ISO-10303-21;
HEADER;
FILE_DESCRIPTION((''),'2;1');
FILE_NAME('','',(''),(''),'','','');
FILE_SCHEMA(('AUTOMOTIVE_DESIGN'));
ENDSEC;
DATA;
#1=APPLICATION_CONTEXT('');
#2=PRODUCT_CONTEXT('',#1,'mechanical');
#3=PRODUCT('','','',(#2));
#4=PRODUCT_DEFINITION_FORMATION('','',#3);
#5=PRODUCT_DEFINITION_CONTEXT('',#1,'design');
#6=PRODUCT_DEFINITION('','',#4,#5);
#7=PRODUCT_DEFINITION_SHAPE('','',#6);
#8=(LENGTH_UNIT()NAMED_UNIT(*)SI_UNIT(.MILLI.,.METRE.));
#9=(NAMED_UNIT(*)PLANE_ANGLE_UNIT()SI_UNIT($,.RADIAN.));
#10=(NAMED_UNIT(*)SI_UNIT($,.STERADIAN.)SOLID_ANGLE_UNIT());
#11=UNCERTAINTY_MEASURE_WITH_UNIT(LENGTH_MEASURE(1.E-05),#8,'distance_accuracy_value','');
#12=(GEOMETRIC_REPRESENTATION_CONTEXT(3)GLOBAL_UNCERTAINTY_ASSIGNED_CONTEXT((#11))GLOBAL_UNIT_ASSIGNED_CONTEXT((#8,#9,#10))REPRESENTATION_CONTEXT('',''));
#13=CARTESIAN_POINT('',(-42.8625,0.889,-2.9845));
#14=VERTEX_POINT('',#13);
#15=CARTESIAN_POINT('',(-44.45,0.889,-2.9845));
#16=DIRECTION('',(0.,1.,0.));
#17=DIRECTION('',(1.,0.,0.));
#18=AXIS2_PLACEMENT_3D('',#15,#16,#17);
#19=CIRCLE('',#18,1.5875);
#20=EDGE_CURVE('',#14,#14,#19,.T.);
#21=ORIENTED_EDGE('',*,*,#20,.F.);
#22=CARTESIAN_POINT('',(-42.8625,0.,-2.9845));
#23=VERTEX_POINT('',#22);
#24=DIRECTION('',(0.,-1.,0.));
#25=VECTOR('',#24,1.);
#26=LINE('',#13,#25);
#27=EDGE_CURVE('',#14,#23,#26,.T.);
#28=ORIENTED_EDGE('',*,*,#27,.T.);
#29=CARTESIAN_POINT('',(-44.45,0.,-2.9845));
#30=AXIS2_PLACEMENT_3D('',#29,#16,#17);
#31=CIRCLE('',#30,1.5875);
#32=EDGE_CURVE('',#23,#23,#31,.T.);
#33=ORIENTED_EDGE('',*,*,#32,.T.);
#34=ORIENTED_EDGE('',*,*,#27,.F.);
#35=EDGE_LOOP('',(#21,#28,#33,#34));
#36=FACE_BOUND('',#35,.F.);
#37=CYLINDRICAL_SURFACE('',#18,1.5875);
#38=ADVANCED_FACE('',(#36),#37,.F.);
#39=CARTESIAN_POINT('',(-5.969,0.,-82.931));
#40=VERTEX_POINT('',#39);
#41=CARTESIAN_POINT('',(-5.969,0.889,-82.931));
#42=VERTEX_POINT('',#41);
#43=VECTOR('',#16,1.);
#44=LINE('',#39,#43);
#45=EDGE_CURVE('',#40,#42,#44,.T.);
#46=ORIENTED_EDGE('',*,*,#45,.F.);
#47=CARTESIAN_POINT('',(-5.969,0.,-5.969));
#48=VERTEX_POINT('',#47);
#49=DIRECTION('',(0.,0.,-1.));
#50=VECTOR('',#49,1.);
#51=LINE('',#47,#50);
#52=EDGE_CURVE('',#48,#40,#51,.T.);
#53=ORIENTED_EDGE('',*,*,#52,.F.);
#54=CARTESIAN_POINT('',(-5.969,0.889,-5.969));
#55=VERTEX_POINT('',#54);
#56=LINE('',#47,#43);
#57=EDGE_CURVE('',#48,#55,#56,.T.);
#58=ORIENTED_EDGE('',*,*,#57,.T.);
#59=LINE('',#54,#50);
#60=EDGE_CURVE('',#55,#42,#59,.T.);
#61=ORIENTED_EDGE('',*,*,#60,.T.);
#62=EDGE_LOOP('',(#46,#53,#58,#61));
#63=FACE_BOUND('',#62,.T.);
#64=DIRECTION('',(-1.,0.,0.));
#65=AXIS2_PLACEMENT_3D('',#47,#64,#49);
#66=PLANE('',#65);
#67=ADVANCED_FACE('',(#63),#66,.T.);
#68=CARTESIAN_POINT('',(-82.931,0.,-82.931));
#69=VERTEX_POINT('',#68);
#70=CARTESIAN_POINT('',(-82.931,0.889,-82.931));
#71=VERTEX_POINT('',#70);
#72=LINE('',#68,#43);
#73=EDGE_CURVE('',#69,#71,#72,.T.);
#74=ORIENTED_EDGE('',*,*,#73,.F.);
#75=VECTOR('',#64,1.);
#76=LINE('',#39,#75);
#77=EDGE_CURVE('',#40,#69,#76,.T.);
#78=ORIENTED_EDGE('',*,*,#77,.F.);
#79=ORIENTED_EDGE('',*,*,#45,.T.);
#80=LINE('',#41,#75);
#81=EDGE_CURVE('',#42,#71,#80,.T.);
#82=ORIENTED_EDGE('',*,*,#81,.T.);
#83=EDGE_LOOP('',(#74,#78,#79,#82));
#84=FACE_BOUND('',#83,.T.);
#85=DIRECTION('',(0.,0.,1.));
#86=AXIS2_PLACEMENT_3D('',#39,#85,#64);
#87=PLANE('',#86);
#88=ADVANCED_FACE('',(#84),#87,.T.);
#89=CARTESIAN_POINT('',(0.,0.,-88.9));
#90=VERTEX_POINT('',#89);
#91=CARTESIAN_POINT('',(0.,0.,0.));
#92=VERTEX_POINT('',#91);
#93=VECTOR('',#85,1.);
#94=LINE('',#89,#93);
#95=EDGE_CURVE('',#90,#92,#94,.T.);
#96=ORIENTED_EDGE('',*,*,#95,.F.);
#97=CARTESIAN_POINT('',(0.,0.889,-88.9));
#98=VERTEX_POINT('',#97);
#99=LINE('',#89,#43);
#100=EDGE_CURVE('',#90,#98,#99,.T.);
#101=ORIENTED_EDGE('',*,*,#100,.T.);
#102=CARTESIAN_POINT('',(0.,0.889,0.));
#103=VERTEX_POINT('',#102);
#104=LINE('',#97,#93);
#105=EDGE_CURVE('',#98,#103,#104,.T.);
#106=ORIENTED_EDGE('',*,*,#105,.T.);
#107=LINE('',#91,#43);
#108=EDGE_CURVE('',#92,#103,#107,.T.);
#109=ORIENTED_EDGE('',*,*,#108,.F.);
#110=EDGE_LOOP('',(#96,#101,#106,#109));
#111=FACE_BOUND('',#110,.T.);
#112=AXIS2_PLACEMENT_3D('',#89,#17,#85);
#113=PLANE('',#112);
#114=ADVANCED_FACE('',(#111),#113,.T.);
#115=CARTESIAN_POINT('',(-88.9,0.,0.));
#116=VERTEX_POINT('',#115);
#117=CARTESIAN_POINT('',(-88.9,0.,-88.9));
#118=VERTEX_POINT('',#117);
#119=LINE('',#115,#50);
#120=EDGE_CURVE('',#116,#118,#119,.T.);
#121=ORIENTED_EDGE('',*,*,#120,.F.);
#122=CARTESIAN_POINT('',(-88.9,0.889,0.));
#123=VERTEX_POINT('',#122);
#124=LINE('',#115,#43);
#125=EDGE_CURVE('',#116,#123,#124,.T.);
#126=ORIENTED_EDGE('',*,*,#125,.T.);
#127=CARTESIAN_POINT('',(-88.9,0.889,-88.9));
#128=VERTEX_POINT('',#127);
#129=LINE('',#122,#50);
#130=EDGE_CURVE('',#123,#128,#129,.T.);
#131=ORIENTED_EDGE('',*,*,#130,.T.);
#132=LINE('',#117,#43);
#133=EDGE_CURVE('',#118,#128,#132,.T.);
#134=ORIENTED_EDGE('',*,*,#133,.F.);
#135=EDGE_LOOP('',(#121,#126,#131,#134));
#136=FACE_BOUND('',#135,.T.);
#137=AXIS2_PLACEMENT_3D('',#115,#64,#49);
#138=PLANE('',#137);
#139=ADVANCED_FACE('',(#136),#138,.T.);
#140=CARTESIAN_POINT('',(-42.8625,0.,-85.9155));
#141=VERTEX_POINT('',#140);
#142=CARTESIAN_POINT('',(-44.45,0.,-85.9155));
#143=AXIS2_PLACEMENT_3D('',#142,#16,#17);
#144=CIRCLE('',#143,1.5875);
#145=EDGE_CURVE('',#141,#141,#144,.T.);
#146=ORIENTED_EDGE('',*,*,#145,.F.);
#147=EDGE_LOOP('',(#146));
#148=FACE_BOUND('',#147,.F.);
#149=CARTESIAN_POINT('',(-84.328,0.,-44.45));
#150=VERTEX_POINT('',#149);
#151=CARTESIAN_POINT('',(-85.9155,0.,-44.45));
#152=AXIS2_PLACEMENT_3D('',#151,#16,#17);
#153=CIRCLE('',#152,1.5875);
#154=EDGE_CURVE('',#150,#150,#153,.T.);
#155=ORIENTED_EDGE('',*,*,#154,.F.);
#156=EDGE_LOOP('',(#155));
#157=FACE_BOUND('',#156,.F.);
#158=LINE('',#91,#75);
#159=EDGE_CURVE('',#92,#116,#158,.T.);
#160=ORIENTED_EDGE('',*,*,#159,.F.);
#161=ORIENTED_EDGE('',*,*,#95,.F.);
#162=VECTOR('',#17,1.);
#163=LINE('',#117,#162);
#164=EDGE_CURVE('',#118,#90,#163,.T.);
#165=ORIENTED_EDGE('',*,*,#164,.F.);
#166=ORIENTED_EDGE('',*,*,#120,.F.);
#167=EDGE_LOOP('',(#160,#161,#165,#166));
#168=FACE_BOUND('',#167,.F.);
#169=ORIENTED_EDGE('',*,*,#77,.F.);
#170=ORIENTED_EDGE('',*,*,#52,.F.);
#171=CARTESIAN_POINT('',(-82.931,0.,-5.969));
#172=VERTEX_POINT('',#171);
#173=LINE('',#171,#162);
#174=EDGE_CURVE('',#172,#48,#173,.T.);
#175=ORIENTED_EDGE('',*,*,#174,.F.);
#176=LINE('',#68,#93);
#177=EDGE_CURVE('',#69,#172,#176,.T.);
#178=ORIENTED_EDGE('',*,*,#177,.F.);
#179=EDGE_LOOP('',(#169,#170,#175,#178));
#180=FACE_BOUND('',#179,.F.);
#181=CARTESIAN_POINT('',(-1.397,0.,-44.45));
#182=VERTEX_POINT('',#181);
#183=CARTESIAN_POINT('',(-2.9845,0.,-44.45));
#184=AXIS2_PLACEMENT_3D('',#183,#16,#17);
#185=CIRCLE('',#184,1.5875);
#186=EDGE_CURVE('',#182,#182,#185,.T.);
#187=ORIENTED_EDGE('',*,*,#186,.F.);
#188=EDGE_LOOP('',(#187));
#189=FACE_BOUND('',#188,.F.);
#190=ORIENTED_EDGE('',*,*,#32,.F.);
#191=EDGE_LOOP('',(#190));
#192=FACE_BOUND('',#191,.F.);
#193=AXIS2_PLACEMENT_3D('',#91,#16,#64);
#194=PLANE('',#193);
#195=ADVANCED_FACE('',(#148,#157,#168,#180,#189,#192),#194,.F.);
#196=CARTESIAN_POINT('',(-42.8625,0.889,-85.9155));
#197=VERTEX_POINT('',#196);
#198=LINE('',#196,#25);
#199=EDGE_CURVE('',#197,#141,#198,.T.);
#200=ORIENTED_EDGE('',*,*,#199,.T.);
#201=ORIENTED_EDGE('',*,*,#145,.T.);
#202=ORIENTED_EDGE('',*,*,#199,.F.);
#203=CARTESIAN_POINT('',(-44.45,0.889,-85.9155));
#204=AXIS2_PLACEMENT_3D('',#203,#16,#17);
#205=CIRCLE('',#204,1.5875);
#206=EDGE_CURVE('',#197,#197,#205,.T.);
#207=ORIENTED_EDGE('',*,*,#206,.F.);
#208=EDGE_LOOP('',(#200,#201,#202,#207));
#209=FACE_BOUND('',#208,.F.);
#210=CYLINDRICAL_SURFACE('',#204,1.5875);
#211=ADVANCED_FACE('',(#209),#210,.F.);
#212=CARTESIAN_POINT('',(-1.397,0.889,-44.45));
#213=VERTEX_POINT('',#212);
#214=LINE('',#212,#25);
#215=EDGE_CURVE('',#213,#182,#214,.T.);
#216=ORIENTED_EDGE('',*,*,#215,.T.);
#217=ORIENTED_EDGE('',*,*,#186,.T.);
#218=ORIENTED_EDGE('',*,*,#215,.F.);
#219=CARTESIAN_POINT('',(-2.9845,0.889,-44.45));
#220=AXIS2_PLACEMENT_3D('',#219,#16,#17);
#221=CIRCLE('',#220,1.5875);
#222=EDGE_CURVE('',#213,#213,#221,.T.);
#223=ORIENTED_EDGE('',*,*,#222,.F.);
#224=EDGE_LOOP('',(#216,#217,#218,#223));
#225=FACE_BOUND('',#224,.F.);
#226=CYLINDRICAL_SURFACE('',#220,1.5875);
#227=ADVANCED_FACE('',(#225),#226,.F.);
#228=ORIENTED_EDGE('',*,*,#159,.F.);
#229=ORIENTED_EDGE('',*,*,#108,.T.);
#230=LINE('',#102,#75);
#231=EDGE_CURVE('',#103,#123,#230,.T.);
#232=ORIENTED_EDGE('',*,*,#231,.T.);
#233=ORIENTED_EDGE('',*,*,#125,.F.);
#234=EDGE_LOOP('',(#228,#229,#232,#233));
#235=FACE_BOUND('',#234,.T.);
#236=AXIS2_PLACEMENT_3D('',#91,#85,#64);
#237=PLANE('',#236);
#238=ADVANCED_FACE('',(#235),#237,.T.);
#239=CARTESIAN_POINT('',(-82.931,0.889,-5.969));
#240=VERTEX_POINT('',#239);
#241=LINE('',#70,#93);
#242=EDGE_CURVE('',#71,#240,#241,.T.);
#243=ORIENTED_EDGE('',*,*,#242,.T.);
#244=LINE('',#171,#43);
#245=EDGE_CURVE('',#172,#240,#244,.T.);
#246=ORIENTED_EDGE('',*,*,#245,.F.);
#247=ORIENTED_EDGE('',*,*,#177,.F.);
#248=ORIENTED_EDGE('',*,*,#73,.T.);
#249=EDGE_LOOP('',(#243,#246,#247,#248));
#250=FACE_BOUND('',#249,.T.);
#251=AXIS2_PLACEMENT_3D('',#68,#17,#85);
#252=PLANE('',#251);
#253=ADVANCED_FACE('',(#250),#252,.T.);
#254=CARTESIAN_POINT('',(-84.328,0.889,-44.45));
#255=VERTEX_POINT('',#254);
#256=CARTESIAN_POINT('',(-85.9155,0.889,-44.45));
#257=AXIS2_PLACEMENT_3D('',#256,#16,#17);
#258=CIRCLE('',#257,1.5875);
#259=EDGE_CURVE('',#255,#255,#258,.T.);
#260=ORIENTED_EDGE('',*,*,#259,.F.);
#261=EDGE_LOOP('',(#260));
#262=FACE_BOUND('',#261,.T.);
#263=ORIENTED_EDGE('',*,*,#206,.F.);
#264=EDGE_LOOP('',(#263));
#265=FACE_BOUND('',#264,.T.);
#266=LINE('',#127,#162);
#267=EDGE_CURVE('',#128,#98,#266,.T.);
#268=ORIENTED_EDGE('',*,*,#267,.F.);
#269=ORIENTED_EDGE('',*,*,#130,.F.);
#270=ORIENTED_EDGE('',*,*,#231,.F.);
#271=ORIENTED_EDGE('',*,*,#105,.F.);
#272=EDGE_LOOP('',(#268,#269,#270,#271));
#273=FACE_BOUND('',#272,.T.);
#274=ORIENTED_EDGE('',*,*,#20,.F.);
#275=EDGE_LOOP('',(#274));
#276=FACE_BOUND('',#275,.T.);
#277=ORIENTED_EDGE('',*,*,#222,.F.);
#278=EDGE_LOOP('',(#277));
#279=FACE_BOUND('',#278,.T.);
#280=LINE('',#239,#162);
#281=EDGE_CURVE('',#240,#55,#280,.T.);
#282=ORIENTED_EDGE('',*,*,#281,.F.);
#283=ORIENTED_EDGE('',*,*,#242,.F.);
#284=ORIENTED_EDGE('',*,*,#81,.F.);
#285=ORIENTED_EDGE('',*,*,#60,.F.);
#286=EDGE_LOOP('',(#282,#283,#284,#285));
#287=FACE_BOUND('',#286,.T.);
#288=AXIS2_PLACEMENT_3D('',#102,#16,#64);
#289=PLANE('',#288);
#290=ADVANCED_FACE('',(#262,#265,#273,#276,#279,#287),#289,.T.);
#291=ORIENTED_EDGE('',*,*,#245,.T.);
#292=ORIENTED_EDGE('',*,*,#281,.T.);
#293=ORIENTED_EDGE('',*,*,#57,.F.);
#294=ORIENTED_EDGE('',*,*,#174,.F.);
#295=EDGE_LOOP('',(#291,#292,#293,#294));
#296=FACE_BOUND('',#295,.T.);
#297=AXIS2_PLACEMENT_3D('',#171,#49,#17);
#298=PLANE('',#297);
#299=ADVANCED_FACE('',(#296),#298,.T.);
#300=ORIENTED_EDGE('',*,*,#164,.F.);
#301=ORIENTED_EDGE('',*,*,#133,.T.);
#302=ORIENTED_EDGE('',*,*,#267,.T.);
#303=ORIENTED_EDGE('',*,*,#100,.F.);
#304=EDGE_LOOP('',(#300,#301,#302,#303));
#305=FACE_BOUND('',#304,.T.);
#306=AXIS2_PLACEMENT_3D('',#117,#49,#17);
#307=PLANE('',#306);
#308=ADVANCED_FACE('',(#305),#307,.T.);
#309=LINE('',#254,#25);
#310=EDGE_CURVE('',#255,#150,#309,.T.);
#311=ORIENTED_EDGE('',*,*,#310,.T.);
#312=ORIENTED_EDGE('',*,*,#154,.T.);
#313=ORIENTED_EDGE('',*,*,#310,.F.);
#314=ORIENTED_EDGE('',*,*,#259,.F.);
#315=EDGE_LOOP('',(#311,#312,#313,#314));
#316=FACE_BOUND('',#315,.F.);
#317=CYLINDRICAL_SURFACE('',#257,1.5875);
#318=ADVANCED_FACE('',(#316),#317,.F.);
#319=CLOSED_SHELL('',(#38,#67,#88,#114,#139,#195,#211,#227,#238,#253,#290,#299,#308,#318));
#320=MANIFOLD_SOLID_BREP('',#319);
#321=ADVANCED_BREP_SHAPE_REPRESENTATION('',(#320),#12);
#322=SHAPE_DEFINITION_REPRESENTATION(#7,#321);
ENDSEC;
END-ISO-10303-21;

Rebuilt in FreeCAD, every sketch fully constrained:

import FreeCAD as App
import Part
import Sketcher
Q = App.Units.Quantity

doc = App.newDocument("Part")
body = doc.addObject("PartDesign::Body", "Body")

sketch1 = doc.addObject("Sketcher::SketchObject", "Sketch")
body.addObject(sketch1)
sketch1.AttachmentSupport = (doc.XZ_Plane, [""])
sketch1.MapMode = "FlatFace"
sketch1.addGeometry([
    Part.LineSegment(App.Vector(-89, 0, 0), App.Vector(0, 0, 0)),
    Part.LineSegment(App.Vector(0, 0, 0), App.Vector(0, -89, 0)),
    Part.LineSegment(App.Vector(0, -89, 0), App.Vector(-89, -89, 0)),
    Part.LineSegment(App.Vector(-89, -89, 0), App.Vector(-89, 0, 0)),
    Part.LineSegment(App.Vector(-6, -6, 0), App.Vector(-83, -6, 0)),
    Part.LineSegment(App.Vector(-83, -6, 0), App.Vector(-83, -83, 0)),
    Part.LineSegment(App.Vector(-83, -83, 0), App.Vector(-6, -83, 0)),
    Part.LineSegment(App.Vector(-6, -83, 0), App.Vector(-6, -6, 0)),
], False)
sketch1.addConstraint([
    Sketcher.Constraint("Coincident", 0, 2, 1, 1),
    Sketcher.Constraint("Coincident", 1, 2, 2, 1),
    Sketcher.Constraint("Coincident", 2, 2, 3, 1),
    Sketcher.Constraint("Coincident", 3, 2, 0, 1),
    Sketcher.Constraint("Coincident", 4, 2, 5, 1),
    Sketcher.Constraint("Coincident", 5, 2, 6, 1),
    Sketcher.Constraint("Coincident", 6, 2, 7, 1),
    Sketcher.Constraint("Coincident", 7, 2, 4, 1),
    Sketcher.Constraint("Horizontal", 0),
    Sketcher.Constraint("Vertical", 1),
    Sketcher.Constraint("Horizontal", 2),
    Sketcher.Constraint("Vertical", 3),
    Sketcher.Constraint("Horizontal", 4),
    Sketcher.Constraint("Vertical", 5),
    Sketcher.Constraint("Horizontal", 6),
    Sketcher.Constraint("Vertical", 7),
    Sketcher.Constraint("Coincident", 0, 2, -1, 1),
    Sketcher.Constraint("Equal", 2, 1),
    Sketcher.Constraint("Equal", 6, 5),
    Sketcher.Constraint("DistanceX", 0, 1, 0, 2, Q("3.5 in")),
    Sketcher.Constraint("DistanceY", 4, 2, -1, 1, Q("0.235 in")),
    Sketcher.Constraint("DistanceX", 6, 2, -1, 1, Q("0.235 in")),
    Sketcher.Constraint("DistanceX", 3, 2, 4, 2, Q("0.235 in")),
])
pad1 = doc.addObject("PartDesign::Pad", "Pad")
body.addObject(pad1)
pad1.Profile = sketch1
pad1.Length = Q("0.035 in")
pad1.Reversed = True

sketch2 = doc.addObject("Sketcher::SketchObject", "Sketch001")
body.addObject(sketch2)
sketch2.AttachmentSupport = (doc.XZ_Plane, [""])
sketch2.MapMode = "FlatFace"
sketch2.AttachmentOffset = App.Placement(App.Vector(0, 0, -0.035 * 25.4), App.Rotation())
sketch2.addGeometry([
    Part.Circle(App.Vector(-85.9, -44.5, 0), App.Vector(0, 0, 1), 1.6),
    Part.Circle(App.Vector(-3, -44.5, 0), App.Vector(0, 0, 1), 1.6),
    Part.Circle(App.Vector(-44.5, -3, 0), App.Vector(0, 0, 1), 1.6),
    Part.Circle(App.Vector(-44.5, -85.9, 0), App.Vector(0, 0, 1), 1.6),
], False)
sketch2.addConstraint([
    Sketcher.Constraint("Equal", 0, 1),
    Sketcher.Constraint("Equal", 1, 2),
    Sketcher.Constraint("Equal", 2, 3),
    Sketcher.Constraint("Horizontal", 0, 3, 1, 3),
    Sketcher.Constraint("Vertical", 2, 3, 3, 3),
    Sketcher.Constraint("Diameter", 0, Q("0.125 in")),
    Sketcher.Constraint("DistanceY", 0, 3, -1, 1, Q("1.75 in")),
    Sketcher.Constraint("DistanceX", 2, 3, -1, 1, Q("1.75 in")),
    Sketcher.Constraint("DistanceX", 1, 3, -1, 1, Q("0.1175 in")),
    Sketcher.Constraint("DistanceY", 2, 3, -1, 1, Q("0.1175 in")),
    Sketcher.Constraint("DistanceX", 0, 3, 1, 3, Q("3.265 in")),
    Sketcher.Constraint("DistanceY", 3, 3, 2, 3, Q("3.265 in")),
])
pocket1 = doc.addObject("PartDesign::Pocket", "Pocket")
body.addObject(pocket1)
pocket1.Profile = sketch2
pocket1.Type = "ThroughAll"
pocket1.Reversed = True

doc.recompute()
